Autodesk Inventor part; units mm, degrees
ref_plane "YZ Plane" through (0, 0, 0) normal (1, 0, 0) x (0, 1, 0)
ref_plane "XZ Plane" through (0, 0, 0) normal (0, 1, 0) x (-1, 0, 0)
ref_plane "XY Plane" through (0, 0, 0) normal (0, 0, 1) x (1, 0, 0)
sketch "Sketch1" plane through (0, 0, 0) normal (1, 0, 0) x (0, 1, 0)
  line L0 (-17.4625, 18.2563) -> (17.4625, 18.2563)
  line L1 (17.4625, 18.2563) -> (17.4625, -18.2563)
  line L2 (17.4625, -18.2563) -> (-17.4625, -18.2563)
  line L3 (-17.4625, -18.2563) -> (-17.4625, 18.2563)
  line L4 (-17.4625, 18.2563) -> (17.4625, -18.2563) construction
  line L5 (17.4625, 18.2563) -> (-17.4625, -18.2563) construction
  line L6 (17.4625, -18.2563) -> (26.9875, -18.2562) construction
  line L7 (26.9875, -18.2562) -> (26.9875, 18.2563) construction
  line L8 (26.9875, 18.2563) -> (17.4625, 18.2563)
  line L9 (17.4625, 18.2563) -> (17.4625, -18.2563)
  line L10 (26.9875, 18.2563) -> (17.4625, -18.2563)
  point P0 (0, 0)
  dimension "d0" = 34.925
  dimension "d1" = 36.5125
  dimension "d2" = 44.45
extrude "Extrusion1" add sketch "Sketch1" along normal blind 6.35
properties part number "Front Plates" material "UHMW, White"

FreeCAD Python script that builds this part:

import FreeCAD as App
import Part
import Sketcher

V = App.Vector
Q = App.Units.Quantity

doc = App.newDocument("Part")
params = doc.addObject("Spreadsheet::Sheet", "Params")
for row, (alias, value) in enumerate([
    ("sketch1_width", "1.75 in"),
    ("sketch1_width2", "1.375 in"),
    ("sketch1_height", "1.4375 in"),
    ("pad1_length", "0.25 in"),
], start=1):
    params.set(f"A{row}", alias)
    params.set(f"B{row}", "=" + value)
    params.setAlias(f"B{row}", alias)

body = doc.addObject("PartDesign::Body", "Body")

# Sketch on YZ plane
sketch1 = doc.addObject("Sketcher::SketchObject", "Sketch")
body.addObject(sketch1)
sketch1.AttachmentSupport = (doc.YZ_Plane, [""])
sketch1.MapMode = "FlatFace"
sketch1.addGeometry([
    Part.LineSegment(V(-17.4625, 18.2563, 0), V(-17.4625, -18.2563, 0)),
    Part.LineSegment(V(-17.4625, -18.2563, 0), V(17.4625, -18.2563, 0)),
    Part.LineSegment(V(17.4625, -18.2563, 0), V(26.9875, 18.2563, 0)),
    Part.LineSegment(V(26.9875, 18.2563, 0), V(-17.4625, 18.2563, 0)),
], False)
sketch1.addConstraint([
    Sketcher.Constraint("Coincident", 0, 2, 1, 1),
    Sketcher.Constraint("Coincident", 1, 2, 2, 1),
    Sketcher.Constraint("Coincident", 2, 2, 3, 1),
    Sketcher.Constraint("Coincident", 3, 2, 0, 1),
    Sketcher.Constraint("Vertical", 0),
    Sketcher.Constraint("Horizontal", 1),
    Sketcher.Constraint("Horizontal", 3),
    Sketcher.Constraint("Symmetric", 1, 2, 3, 2, -1, 1),
    Sketcher.Constraint("DistanceX", 3, 2, 3, 1, Q("1.75 in")),
    Sketcher.Constraint("DistanceX", 1, 1, 1, 2, Q("1.375 in")),
    Sketcher.Constraint("DistanceY", 0, 2, 0, 1, Q("1.4375 in")),
])
sketch1.setExpression("Constraints[8]", "Params.sketch1_width")
sketch1.setExpression("Constraints[9]", "Params.sketch1_width2")
sketch1.setExpression("Constraints[10]", "Params.sketch1_height")
pad1 = doc.addObject("PartDesign::Pad", "Pad")
body.addObject(pad1)
pad1.Profile = sketch1
pad1.setExpression("Length", "Params.pad1_length")

doc.recompute()
